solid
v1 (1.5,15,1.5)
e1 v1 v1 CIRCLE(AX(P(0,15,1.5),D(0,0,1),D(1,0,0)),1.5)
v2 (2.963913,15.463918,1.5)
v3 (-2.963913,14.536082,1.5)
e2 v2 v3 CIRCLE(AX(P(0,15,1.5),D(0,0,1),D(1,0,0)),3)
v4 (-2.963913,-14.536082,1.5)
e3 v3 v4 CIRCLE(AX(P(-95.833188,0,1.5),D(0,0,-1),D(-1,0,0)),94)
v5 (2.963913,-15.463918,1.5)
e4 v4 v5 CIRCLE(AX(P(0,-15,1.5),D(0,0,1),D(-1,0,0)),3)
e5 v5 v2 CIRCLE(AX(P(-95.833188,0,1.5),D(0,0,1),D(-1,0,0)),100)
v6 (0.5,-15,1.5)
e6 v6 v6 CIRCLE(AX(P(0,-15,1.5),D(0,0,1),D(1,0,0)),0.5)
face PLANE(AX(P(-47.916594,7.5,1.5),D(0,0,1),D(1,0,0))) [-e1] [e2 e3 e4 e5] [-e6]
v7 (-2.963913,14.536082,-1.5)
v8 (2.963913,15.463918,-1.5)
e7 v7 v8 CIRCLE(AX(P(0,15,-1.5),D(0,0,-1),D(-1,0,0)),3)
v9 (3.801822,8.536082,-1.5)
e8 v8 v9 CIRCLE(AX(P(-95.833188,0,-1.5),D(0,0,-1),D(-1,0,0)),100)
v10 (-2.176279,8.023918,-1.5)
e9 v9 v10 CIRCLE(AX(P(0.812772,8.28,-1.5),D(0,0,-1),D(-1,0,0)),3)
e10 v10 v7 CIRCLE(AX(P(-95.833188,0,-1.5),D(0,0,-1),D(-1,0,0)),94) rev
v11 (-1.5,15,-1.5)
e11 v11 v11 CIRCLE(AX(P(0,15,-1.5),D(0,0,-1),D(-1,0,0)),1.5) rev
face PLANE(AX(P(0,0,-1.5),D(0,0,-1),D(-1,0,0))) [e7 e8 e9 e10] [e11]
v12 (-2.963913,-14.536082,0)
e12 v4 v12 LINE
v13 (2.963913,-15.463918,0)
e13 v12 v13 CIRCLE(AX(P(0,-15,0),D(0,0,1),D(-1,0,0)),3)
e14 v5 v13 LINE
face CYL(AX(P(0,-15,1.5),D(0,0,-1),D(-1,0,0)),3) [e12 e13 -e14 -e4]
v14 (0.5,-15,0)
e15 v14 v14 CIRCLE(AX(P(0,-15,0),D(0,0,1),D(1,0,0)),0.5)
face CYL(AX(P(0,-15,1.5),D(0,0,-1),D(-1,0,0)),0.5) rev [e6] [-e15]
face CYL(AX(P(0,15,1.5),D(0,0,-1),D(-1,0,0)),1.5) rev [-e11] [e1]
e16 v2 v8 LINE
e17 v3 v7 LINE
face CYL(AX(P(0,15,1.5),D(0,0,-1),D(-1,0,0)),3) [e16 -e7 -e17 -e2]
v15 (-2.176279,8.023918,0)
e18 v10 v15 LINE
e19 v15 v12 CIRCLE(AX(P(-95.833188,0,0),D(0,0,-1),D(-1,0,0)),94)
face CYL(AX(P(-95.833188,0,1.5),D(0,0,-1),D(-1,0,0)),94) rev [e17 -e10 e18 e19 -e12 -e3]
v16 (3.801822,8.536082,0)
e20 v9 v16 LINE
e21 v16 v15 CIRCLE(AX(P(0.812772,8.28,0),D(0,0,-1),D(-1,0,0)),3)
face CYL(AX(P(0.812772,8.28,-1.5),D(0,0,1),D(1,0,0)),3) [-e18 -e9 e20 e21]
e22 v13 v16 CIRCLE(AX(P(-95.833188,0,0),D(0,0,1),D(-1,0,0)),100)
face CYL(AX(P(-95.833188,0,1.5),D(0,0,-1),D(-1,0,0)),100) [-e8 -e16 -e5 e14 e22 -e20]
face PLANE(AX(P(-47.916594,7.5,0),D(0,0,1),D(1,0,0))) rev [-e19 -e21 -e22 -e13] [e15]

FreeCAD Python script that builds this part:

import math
import FreeCAD as App
import Part
import Sketcher

doc = App.newDocument("Part")
body = doc.addObject("PartDesign::Body", "Body")

# Sketch on XY plane
sketch1 = doc.addObject("Sketcher::SketchObject", "Sketch")
body.addObject(sketch1)
sketch1.AttachmentSupport = (doc.XY_Plane, [""])
sketch1.MapMode = "FlatFace"
sketch1.addGeometry([
    Part.ArcOfCircle(Part.Circle(App.Vector(-95.8, 0, 0), App.Vector(0, 0, 1), 100), math.radians(-8.9), math.radians(8.9)),  # 0
    Part.ArcOfCircle(Part.Circle(App.Vector(0, 15, 0), App.Vector(0, 0, 1), 3), math.radians(9), math.radians(189)),  # 1
    Part.ArcOfCircle(Part.Circle(App.Vector(-95.8, 0, 0), App.Vector(0, 0, 1), 94), math.radians(-8.9), math.radians(8.9)),  # 2
    Part.ArcOfCircle(Part.Circle(App.Vector(0, -15, 0), App.Vector(0, 0, 1), 3), math.radians(171), math.radians(351)),  # 3
    Part.Circle(App.Vector(0, -15, 0), App.Vector(0, 0, 1), 0.5),  # 4
    Part.Circle(App.Vector(0, 15, 0), App.Vector(0, 0, 1), 1.5),  # 5
], False)
sketch1.addConstraint([
    Sketcher.Constraint("Tangent", 0, 2, 1, 1),
    Sketcher.Constraint("Tangent", 1, 2, 2, 2),
    Sketcher.Constraint("Tangent", 2, 1, 3, 1),
    Sketcher.Constraint("Tangent", 3, 2, 0, 1),
    Sketcher.Constraint("Coincident", 2, 3, 0, 3),
    Sketcher.Constraint("Coincident", 4, 3, 3, 3),
    Sketcher.Constraint("Coincident", 5, 3, 1, 3),
    Sketcher.Constraint("Symmetric", 1, 3, 3, 3, -1, 1),
    Sketcher.Constraint("PointOnObject", 0, 3, -1),
    Sketcher.Constraint("Diameter", 4, 1.0),
    Sketcher.Constraint("Diameter", 5, 3.0),
    Sketcher.Constraint("Radius", 0, 100.0),
    Sketcher.Constraint("Radius", 1, 3.0),
    Sketcher.Constraint("DistanceY", -1, 1, 1, 3, 15.0),
])
pad1 = doc.addObject("PartDesign::Pad", "Pad")
body.addObject(pad1)
pad1.Profile = sketch1
pad1.Length = 1.5

# Sketch on XY plane
sketch2 = doc.addObject("Sketcher::SketchObject", "Sketch001")
body.addObject(sketch2)
sketch2.AttachmentSupport = (doc.XY_Plane, [""])
sketch2.MapMode = "FlatFace"
sketch2.AttachmentOffset = App.Placement(App.Vector(0, 0, -1.5), App.Rotation())
sketch2.addGeometry([
    Part.ArcOfCircle(Part.Circle(App.Vector(-95.8, 0, 0), App.Vector(0, 0, 1), 100), math.radians(4.9), math.radians(8.9)),  # 0
    Part.ArcOfCircle(Part.Circle(App.Vector(0.8, 8.3, 0), App.Vector(0, 0, 1), 3), math.radians(-175), math.radians(5)),  # 1
    Part.ArcOfCircle(Part.Circle(App.Vector(-95.8, 0, 0), App.Vector(0, 0, 1), 94), math.radians(4.9), math.radians(8.9)),  # 2
    Part.ArcOfCircle(Part.Circle(App.Vector(0, 15, 0), App.Vector(0, 0, 1), 3), math.radians(9), math.radians(189)),  # 3
    Part.Circle(App.Vector(0, 15, 0), App.Vector(0, 0, 1), 1.5),  # 4
], False)
sketch2.addConstraint([
    Sketcher.Constraint("Tangent", 0, 1, 1, 2),
    Sketcher.Constraint("Tangent", 1, 1, 2, 1),
    Sketcher.Constraint("Tangent", 2, 2, 3, 2),
    Sketcher.Constraint("Tangent", 3, 1, 0, 2),
    Sketcher.Constraint("Coincident", 2, 3, 0, 3),
    Sketcher.Constraint("Coincident", 4, 3, 3, 3),
    Sketcher.Constraint("PointOnObject", 0, 3, -1),
    Sketcher.Constraint("PointOnObject", 3, 3, -2),
    Sketcher.Constraint("Diameter", 4, 3.0),
    Sketcher.Constraint("Radius", 0, 100.0),
    Sketcher.Constraint("Radius", 1, 3.0),
    Sketcher.Constraint("DistanceY", -1, 1, 3, 3, 15.0),
    Sketcher.Constraint("DistanceY", 0, 1, 2, 2, 6.0),
])
pad2 = doc.addObject("PartDesign::Pad", "Pad001")
body.addObject(pad2)
pad2.Profile = sketch2
pad2.Length = 1.5

doc.recompute()
